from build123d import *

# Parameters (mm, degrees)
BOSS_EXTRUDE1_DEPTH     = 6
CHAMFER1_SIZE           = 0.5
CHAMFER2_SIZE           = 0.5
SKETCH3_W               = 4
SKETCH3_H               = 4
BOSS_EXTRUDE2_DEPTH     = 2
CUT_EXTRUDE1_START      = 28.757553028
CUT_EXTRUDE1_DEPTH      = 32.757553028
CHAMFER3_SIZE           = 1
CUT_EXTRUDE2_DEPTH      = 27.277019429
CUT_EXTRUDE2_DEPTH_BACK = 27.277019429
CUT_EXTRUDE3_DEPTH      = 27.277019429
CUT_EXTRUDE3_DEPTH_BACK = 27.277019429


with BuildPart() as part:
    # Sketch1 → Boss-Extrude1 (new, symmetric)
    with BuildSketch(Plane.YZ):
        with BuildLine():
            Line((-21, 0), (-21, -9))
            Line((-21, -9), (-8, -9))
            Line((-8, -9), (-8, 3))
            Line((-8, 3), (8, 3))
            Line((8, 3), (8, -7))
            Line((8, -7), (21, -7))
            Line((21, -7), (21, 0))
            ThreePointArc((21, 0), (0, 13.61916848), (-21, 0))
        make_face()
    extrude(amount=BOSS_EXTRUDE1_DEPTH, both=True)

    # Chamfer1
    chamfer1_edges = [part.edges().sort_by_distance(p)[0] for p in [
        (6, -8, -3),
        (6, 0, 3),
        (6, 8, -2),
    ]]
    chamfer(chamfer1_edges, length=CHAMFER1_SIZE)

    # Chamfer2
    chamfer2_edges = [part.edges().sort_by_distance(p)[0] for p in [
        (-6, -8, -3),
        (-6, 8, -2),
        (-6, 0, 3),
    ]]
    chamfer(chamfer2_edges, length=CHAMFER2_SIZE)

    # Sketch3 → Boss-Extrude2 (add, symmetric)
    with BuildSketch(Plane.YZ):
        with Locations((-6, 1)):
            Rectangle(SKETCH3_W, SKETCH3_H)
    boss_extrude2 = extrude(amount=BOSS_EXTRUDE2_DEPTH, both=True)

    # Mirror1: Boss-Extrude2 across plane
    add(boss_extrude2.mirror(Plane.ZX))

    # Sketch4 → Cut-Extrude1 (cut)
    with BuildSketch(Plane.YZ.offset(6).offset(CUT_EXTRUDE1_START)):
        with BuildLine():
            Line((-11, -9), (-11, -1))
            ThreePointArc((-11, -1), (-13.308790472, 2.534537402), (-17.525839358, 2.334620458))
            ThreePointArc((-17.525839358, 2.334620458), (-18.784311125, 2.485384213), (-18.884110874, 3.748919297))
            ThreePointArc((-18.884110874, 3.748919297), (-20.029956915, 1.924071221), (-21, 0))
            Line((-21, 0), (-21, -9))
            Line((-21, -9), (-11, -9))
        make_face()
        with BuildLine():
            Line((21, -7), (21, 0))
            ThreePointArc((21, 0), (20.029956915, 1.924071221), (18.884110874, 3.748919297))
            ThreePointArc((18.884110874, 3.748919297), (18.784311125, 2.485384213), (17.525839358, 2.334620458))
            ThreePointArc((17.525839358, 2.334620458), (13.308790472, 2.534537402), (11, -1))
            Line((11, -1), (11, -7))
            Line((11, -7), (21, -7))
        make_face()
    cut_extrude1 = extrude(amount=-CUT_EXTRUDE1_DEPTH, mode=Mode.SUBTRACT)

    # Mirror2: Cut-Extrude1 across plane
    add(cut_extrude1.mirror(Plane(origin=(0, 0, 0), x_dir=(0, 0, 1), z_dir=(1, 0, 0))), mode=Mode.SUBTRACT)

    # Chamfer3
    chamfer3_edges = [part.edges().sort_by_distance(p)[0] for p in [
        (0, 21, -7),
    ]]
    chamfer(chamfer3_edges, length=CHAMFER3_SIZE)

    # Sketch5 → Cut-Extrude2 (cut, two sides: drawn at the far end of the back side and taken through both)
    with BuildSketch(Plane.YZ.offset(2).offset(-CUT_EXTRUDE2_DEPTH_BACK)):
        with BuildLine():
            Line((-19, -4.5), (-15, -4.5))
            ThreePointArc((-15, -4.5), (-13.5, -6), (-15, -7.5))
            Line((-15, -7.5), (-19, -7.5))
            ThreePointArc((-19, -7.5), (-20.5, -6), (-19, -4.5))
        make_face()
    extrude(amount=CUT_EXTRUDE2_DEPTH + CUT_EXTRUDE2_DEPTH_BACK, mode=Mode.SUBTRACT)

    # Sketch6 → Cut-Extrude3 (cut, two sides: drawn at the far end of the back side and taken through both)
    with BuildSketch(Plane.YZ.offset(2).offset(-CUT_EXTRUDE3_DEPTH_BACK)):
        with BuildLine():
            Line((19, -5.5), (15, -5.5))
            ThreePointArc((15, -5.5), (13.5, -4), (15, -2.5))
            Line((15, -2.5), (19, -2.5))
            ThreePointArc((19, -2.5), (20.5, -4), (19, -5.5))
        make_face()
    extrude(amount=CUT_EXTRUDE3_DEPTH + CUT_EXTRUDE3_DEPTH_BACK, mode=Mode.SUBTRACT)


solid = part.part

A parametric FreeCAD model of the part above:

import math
import FreeCAD as App
import Part
import Sketcher

V = App.Vector


def edges_at(feature, points):
    """Names of the edges that pass closest to the given points."""
    edges = feature.Shape.Edges
    near = lambda p: min(range(len(edges)), key=lambda i: edges[i].distToShape(Part.Vertex(*p))[0])
    return sorted({f"Edge{near(p) + 1}" for p in points})

doc = App.newDocument("Part")
body = doc.addObject("PartDesign::Body", "Body")

sketch1 = body.newObject("Sketcher::SketchObject", "Sketch")
sketch1.AttachmentSupport = (doc.getObject("YZ_Plane"), [""])
sketch1.MapMode = "FlatFace"
sketch1.addGeometry(Part.LineSegment(V(-21, 0, 0), V(-21, -9, 0)), False)
sketch1.addGeometry(Part.LineSegment(V(-21, -9, 0), V(-8, -9, 0)), False)
sketch1.addGeometry(Part.LineSegment(V(-8, -9, 0), V(-8, 3, 0)), False)
sketch1.addGeometry(Part.LineSegment(V(-8, 3, 0), V(8, 3, 0)), False)
sketch1.addGeometry(Part.LineSegment(V(8, 3, 0), V(8, -7, 0)), False)
sketch1.addGeometry(Part.LineSegment(V(8, -7, 0), V(21, -7, 0)), False)
sketch1.addGeometry(Part.LineSegment(V(21, -7, 0), V(21, 0, 0)), False)
sketch1.addGeometry(Part.ArcOfCircle(Part.Circle(V(0, -9, 0), V(0, 0, 1), 23), math.radians(24), math.radians(156)), False)
sketch1.addConstraint(Sketcher.Constraint("Coincident", 0, 2, 1, 1))
sketch1.addConstraint(Sketcher.Constraint("Coincident", 1, 2, 2, 1))
sketch1.addConstraint(Sketcher.Constraint("Coincident", 2, 2, 3, 1))
sketch1.addConstraint(Sketcher.Constraint("Coincident", 3, 2, 4, 1))
sketch1.addConstraint(Sketcher.Constraint("Coincident", 4, 2, 5, 1))
sketch1.addConstraint(Sketcher.Constraint("Coincident", 5, 2, 6, 1))
sketch1.addConstraint(Sketcher.Constraint("Coincident", 6, 2, 7, 1))
sketch1.addConstraint(Sketcher.Constraint("Coincident", 7, 2, 0, 1))
sketch1.addConstraint(Sketcher.Constraint("Vertical", 0))
sketch1.addConstraint(Sketcher.Constraint("Horizontal", 1))
sketch1.addConstraint(Sketcher.Constraint("Vertical", 2))
sketch1.addConstraint(Sketcher.Constraint("Horizontal", 3))
sketch1.addConstraint(Sketcher.Constraint("Vertical", 4))
sketch1.addConstraint(Sketcher.Constraint("Horizontal", 5))
sketch1.addConstraint(Sketcher.Constraint("Vertical", 6))
sketch1.addConstraint(Sketcher.Constraint("Symmetric", 6, 2, 7, 2, -1, 1))
sketch1.addConstraint(Sketcher.Constraint("PointOnObject", 7, 3, -2))
sketch1.addConstraint(Sketcher.Constraint("Equal", 1, 5))
sketch1.addConstraint(Sketcher.Constraint("Radius", 7, 23.0))
sketch1.addConstraint(Sketcher.Constraint("DistanceX", 1, 1, 1, 2, 13.0))
sketch1.addConstraint(Sketcher.Constraint("DistanceX", 3, 1, 3, 2, 16.0))
sketch1.addConstraint(Sketcher.Constraint("DistanceY", 0, 2, 0, 1, 9.0))
sketch1.addConstraint(Sketcher.Constraint("DistanceY", 2, 1, 2, 2, 12.0))
sketch1.addConstraint(Sketcher.Constraint("DistanceY", 4, 2, 4, 1, 10.0))
pad1 = body.newObject("PartDesign::Pad", "Pad")
pad1.Profile = sketch1
pad1.Length = 12
pad1.Midplane = True
doc.recompute()

chamfer = body.newObject("PartDesign::Chamfer", "Chamfer")
chamfer.Base = (pad1, edges_at(pad1, [(6, -8, -3), (6, 0, 3), (6, 8, -2)]))
chamfer.Size = 0.5
doc.recompute()

chamfer2 = body.newObject("PartDesign::Chamfer", "Chamfer001")
chamfer2.Base = (chamfer, edges_at(chamfer, [(-6, -8, -3), (-6, 8, -2), (-6, 0, 3)]))
chamfer2.Size = 0.5

sketch2 = body.newObject("Sketcher::SketchObject", "Sketch001")
sketch2.AttachmentSupport = (doc.getObject("YZ_Plane"), [""])
sketch2.MapMode = "FlatFace"
sketch2.addGeometry(Part.LineSegment(V(-8, 3, 0), V(-8, -1, 0)), False)
sketch2.addGeometry(Part.LineSegment(V(-8, -1, 0), V(-4, -1, 0)), False)
sketch2.addGeometry(Part.LineSegment(V(-4, -1, 0), V(-4, 3, 0)), False)
sketch2.addGeometry(Part.LineSegment(V(-4, 3, 0), V(-8, 3, 0)), False)
sketch2.addConstraint(Sketcher.Constraint("Coincident", 0, 2, 1, 1))
sketch2.addConstraint(Sketcher.Constraint("Coincident", 1, 2, 2, 1))
sketch2.addConstraint(Sketcher.Constraint("Coincident", 2, 2, 3, 1))
sketch2.addConstraint(Sketcher.Constraint("Coincident", 3, 2, 0, 1))
sketch2.addConstraint(Sketcher.Constraint("Vertical", 0))
sketch2.addConstraint(Sketcher.Constraint("Horizontal", 1))
sketch2.addConstraint(Sketcher.Constraint("Vertical", 2))
sketch2.addConstraint(Sketcher.Constraint("Horizontal", 3))
sketch2.addConstraint(Sketcher.Constraint("Equal", 3, 0))
sketch2.addConstraint(Sketcher.Constraint("DistanceX", 1, 1, 1, 2, 4.0))
sketch2.addConstraint(Sketcher.Constraint("DistanceX", 0, 2, -1, 1, 8.0))
sketch2.addConstraint(Sketcher.Constraint("DistanceY", 0, 2, -1, 1, 1.0))
pad2 = body.newObject("PartDesign::Pad", "Pad001")
pad2.Profile = sketch2
pad2.Length = 4
pad2.Midplane = True
doc.recompute()

mirrored = body.newObject("PartDesign::Mirrored", "Mirrored")
mirrored.Originals = [pad2]
mirrored.MirrorPlane = (doc.getObject("XZ_Plane"), [""])
body.Tip = mirrored

sketch3 = body.newObject("Sketcher::SketchObject", "Sketch002")
sketch3.AttachmentSupport = (doc.getObject("YZ_Plane"), [""])
sketch3.MapMode = "FlatFace"
sketch3.AttachmentOffset = App.Placement(V(0, 0, 34.757553), App.Rotation())
sketch3.addGeometry(Part.LineSegment(V(-11, -9, 0), V(-11, -1, 0)), False)
sketch3.addGeometry(Part.ArcOfCircle(Part.Circle(V(-15.2, -1.2, 0), V(0, 0, 1), 4.2), math.radians(3), math.radians(122)), False)
sketch3.addGeometry(Part.ArcOfCircle(Part.Circle(V(-18.1, 3.2, 0), V(0, 0, 1), 1), math.radians(145), math.radians(302)), False)
sketch3.addGeometry(Part.ArcOfCircle(Part.Circle(V(0, -9.4, 0), V(0, 0, 1), 23), math.radians(145.19), math.radians(155.93)), False)
sketch3.addGeometry(Part.LineSegment(V(-21, 0, 0), V(-21, -9, 0)), False)
sketch3.addGeometry(Part.LineSegment(V(-21, -9, 0), V(-11, -9, 0)), False)
sketch3.addGeometry(Part.LineSegment(V(21, -7, 0), V(21, 0, 0)), False)
sketch3.addGeometry(Part.ArcOfCircle(Part.Circle(V(0, -9.4, 0), V(0, 0, 1), 23), math.radians(24.07), math.radians(34.81)), False)
sketch3.addGeometry(Part.ArcOfCircle(Part.Circle(V(18.1, 3.2, 0), V(0, 0, 1), 1), math.radians(-122), math.radians(35)), False)
sketch3.addGeometry(Part.ArcOfCircle(Part.Circle(V(15.2, -1.2, 0), V(0, 0, 1), 4.2), math.radians(58), math.radians(177)), False)
sketch3.addGeometry(Part.LineSegment(V(11, -1, 0), V(11, -7, 0)), False)
sketch3.addGeometry(Part.LineSegment(V(11, -7, 0), V(21, -7, 0)), False)
sketch3.addConstraint(Sketcher.Constraint("Coincident", 0, 2, 1, 1))
sketch3.addConstraint(Sketcher.Constraint("Tangent", 1, 2, 2, 2))
sketch3.addConstraint(Sketcher.Constraint("Tangent", 2, 1, 3, 1))
sketch3.addConstraint(Sketcher.Constraint("Coincident", 3, 2, 4, 1))
sketch3.addConstraint(Sketcher.Constraint("Coincident", 4, 2, 5, 1))
sketch3.addConstraint(Sketcher.Constraint("Coincident", 5, 2, 0, 1))
sketch3.addConstraint(Sketcher.Constraint("Coincident", 6, 2, 7, 1))
sketch3.addConstraint(Sketcher.Constraint("Tangent", 7, 2, 8, 2))
sketch3.addConstraint(Sketcher.Constraint("Tangent", 8, 1, 9, 1))
sketch3.addConstraint(Sketcher.Constraint("Coincident", 9, 2, 10, 1))
sketch3.addConstraint(Sketcher.Constraint("Coincident", 10, 2, 11, 1))
sketch3.addConstraint(Sketcher.Constraint("Coincident", 11, 2, 6, 1))
sketch3.addConstraint(Sketcher.Constraint("Vertical", 0))
sketch3.addConstraint(Sketcher.Constraint("Vertical", 4))
sketch3.addConstraint(Sketcher.Constraint("Horizontal", 5))
sketch3.addConstraint(Sketcher.Constraint("Vertical", 6))
sketch3.addConstraint(Sketcher.Constraint("Vertical", 10))
sketch3.addConstraint(Sketcher.Constraint("Horizontal", 11))
sketch3.addConstraint(Sketcher.Constraint("Coincident", 7, 3, 3, 3))
sketch3.addConstraint(Sketcher.Constraint("Equal", 3, 7))
sketch3.addConstraint(Sketcher.Constraint("Equal", 2, 8))
sketch3.addConstraint(Sketcher.Constraint("Equal", 1, 9))
sketch3.addConstraint(Sketcher.Constraint("Symmetric", 3, 2, 6, 2, -1, 1))
sketch3.addConstraint(Sketcher.Constraint("Symmetric", 2, 3, 8, 3, -2))
sketch3.addConstraint(Sketcher.Constraint("Symmetric", 0, 2, 9, 2, -2))
sketch3.addConstraint(Sketcher.Constraint("Radius", 2, 1.0))
sketch3.addConstraint(Sketcher.Constraint("Radius", 3, 23.0))
sketch3.addConstraint(Sketcher.Constraint("DistanceX", 5, 1, 5, 2, 10.0))
sketch3.addConstraint(Sketcher.Constraint("DistanceY", 0, 1, 0, 2, 8.0))
sketch3.addConstraint(Sketcher.Constraint("DistanceY", 4, 2, 4, 1, 9.0))
sketch3.addConstraint(Sketcher.Constraint("DistanceY", 6, 1, 6, 2, 7.0))
sketch3.addConstraint(Sketcher.Constraint("Radius", 1, 4.25))
sketch3.addConstraint(Sketcher.Constraint("DistanceX", 0, 2, -1, 1, 11.0))
sketch3.addConstraint(Sketcher.Constraint("DistanceY", 1, 3, -1, 1, 1.25))
pocket1 = body.newObject("PartDesign::Pocket", "Pocket")
pocket1.Profile = sketch3
pocket1.Length = 32.757553
doc.recompute()

mirrored2 = body.newObject("PartDesign::Mirrored", "Mirrored001")
mirrored2.Originals = [pocket1]
mirrored2.MirrorPlane = (doc.getObject("YZ_Plane"), [""])
body.Tip = mirrored2
doc.recompute()

chamfer3 = body.newObject("PartDesign::Chamfer", "Chamfer002")
chamfer3.Base = (mirrored2, edges_at(mirrored2, [(0, 21, -7)]))
chamfer3.Size = 1

sketch4 = body.newObject("Sketcher::SketchObject", "Sketch003")
sketch4.AttachmentSupport = (doc.getObject("YZ_Plane"), [""])
sketch4.MapMode = "FlatFace"
sketch4.AttachmentOffset = App.Placement(V(0, 0, 2), App.Rotation())
sketch4.addGeometry(Part.LineSegment(V(-15, -4.5, 0), V(-19, -4.5, 0)), False)
sketch4.addGeometry(Part.ArcOfCircle(Part.Circle(V(-19, -6, 0), V(0, 0, 1), 1.5), math.radians(90), math.radians(270)), False)
sketch4.addGeometry(Part.LineSegment(V(-19, -7.5, 0), V(-15, -7.5, 0)), False)
sketch4.addGeometry(Part.ArcOfCircle(Part.Circle(V(-15, -6, 0), V(0, 0, 1), 1.5), math.radians(-90), math.radians(90)), False)
sketch4.addConstraint(Sketcher.Constraint("Tangent", 0, 2, 1, 1))
sketch4.addConstraint(Sketcher.Constraint("Tangent", 1, 2, 2, 1))
sketch4.addConstraint(Sketcher.Constraint("Tangent", 2, 2, 3, 1))
sketch4.addConstraint(Sketcher.Constraint("Tangent", 3, 2, 0, 1))
sketch4.addConstraint(Sketcher.Constraint("Horizontal", 0))
sketch4.addConstraint(Sketcher.Constraint("Horizontal", 2))
sketch4.addConstraint(Sketcher.Constraint("Radius", 1, 1.5))
sketch4.addConstraint(Sketcher.Constraint("DistanceX", 0, 2, 0, 1, 4.0))
sketch4.addConstraint(Sketcher.Constraint("DistanceX", 1, 3, -1, 1, 19.0))
sketch4.addConstraint(Sketcher.Constraint("DistanceY", 1, 3, -1, 1, 6.0))
pocket2 = body.newObject("PartDesign::Pocket", "Pocket001")
pocket2.Profile = sketch4
pocket2.Type = "ThroughAll"
pocket2.Midplane = True

sketch5 = body.newObject("Sketcher::SketchObject", "Sketch004")
sketch5.AttachmentSupport = (doc.getObject("YZ_Plane"), [""])
sketch5.MapMode = "FlatFace"
sketch5.AttachmentOffset = App.Placement(V(0, 0, 2), App.Rotation())
sketch5.addGeometry(Part.LineSegment(V(15, -5.5, 0), V(19, -5.5, 0)), False)
sketch5.addGeometry(Part.ArcOfCircle(Part.Circle(V(19, -4, 0), V(0, 0, 1), 1.5), math.radians(-90), math.radians(90)), False)
sketch5.addGeometry(Part.LineSegment(V(19, -2.5, 0), V(15, -2.5, 0)), False)
sketch5.addGeometry(Part.ArcOfCircle(Part.Circle(V(15, -4, 0), V(0, 0, 1), 1.5), math.radians(90), math.radians(270)), False)
sketch5.addConstraint(Sketcher.Constraint("Tangent", 0, 2, 1, 1))
sketch5.addConstraint(Sketcher.Constraint("Tangent", 1, 2, 2, 1))
sketch5.addConstraint(Sketcher.Constraint("Tangent", 2, 2, 3, 1))
sketch5.addConstraint(Sketcher.Constraint("Tangent", 3, 2, 0, 1))
sketch5.addConstraint(Sketcher.Constraint("Horizontal", 0))
sketch5.addConstraint(Sketcher.Constraint("Horizontal", 2))
sketch5.addConstraint(Sketcher.Constraint("Radius", 1, 1.5))
sketch5.addConstraint(Sketcher.Constraint("DistanceX", 0, 1, 0, 2, 4.0))
sketch5.addConstraint(Sketcher.Constraint("DistanceX", -1, 1, 1, 3, 19.0))
sketch5.addConstraint(Sketcher.Constraint("DistanceY", 1, 3, -1, 1, 4.0))
pocket3 = body.newObject("PartDesign::Pocket", "Pocket002")
pocket3.Profile = sketch5
pocket3.Type = "ThroughAll"
pocket3.Midplane = True

doc.recompute()
